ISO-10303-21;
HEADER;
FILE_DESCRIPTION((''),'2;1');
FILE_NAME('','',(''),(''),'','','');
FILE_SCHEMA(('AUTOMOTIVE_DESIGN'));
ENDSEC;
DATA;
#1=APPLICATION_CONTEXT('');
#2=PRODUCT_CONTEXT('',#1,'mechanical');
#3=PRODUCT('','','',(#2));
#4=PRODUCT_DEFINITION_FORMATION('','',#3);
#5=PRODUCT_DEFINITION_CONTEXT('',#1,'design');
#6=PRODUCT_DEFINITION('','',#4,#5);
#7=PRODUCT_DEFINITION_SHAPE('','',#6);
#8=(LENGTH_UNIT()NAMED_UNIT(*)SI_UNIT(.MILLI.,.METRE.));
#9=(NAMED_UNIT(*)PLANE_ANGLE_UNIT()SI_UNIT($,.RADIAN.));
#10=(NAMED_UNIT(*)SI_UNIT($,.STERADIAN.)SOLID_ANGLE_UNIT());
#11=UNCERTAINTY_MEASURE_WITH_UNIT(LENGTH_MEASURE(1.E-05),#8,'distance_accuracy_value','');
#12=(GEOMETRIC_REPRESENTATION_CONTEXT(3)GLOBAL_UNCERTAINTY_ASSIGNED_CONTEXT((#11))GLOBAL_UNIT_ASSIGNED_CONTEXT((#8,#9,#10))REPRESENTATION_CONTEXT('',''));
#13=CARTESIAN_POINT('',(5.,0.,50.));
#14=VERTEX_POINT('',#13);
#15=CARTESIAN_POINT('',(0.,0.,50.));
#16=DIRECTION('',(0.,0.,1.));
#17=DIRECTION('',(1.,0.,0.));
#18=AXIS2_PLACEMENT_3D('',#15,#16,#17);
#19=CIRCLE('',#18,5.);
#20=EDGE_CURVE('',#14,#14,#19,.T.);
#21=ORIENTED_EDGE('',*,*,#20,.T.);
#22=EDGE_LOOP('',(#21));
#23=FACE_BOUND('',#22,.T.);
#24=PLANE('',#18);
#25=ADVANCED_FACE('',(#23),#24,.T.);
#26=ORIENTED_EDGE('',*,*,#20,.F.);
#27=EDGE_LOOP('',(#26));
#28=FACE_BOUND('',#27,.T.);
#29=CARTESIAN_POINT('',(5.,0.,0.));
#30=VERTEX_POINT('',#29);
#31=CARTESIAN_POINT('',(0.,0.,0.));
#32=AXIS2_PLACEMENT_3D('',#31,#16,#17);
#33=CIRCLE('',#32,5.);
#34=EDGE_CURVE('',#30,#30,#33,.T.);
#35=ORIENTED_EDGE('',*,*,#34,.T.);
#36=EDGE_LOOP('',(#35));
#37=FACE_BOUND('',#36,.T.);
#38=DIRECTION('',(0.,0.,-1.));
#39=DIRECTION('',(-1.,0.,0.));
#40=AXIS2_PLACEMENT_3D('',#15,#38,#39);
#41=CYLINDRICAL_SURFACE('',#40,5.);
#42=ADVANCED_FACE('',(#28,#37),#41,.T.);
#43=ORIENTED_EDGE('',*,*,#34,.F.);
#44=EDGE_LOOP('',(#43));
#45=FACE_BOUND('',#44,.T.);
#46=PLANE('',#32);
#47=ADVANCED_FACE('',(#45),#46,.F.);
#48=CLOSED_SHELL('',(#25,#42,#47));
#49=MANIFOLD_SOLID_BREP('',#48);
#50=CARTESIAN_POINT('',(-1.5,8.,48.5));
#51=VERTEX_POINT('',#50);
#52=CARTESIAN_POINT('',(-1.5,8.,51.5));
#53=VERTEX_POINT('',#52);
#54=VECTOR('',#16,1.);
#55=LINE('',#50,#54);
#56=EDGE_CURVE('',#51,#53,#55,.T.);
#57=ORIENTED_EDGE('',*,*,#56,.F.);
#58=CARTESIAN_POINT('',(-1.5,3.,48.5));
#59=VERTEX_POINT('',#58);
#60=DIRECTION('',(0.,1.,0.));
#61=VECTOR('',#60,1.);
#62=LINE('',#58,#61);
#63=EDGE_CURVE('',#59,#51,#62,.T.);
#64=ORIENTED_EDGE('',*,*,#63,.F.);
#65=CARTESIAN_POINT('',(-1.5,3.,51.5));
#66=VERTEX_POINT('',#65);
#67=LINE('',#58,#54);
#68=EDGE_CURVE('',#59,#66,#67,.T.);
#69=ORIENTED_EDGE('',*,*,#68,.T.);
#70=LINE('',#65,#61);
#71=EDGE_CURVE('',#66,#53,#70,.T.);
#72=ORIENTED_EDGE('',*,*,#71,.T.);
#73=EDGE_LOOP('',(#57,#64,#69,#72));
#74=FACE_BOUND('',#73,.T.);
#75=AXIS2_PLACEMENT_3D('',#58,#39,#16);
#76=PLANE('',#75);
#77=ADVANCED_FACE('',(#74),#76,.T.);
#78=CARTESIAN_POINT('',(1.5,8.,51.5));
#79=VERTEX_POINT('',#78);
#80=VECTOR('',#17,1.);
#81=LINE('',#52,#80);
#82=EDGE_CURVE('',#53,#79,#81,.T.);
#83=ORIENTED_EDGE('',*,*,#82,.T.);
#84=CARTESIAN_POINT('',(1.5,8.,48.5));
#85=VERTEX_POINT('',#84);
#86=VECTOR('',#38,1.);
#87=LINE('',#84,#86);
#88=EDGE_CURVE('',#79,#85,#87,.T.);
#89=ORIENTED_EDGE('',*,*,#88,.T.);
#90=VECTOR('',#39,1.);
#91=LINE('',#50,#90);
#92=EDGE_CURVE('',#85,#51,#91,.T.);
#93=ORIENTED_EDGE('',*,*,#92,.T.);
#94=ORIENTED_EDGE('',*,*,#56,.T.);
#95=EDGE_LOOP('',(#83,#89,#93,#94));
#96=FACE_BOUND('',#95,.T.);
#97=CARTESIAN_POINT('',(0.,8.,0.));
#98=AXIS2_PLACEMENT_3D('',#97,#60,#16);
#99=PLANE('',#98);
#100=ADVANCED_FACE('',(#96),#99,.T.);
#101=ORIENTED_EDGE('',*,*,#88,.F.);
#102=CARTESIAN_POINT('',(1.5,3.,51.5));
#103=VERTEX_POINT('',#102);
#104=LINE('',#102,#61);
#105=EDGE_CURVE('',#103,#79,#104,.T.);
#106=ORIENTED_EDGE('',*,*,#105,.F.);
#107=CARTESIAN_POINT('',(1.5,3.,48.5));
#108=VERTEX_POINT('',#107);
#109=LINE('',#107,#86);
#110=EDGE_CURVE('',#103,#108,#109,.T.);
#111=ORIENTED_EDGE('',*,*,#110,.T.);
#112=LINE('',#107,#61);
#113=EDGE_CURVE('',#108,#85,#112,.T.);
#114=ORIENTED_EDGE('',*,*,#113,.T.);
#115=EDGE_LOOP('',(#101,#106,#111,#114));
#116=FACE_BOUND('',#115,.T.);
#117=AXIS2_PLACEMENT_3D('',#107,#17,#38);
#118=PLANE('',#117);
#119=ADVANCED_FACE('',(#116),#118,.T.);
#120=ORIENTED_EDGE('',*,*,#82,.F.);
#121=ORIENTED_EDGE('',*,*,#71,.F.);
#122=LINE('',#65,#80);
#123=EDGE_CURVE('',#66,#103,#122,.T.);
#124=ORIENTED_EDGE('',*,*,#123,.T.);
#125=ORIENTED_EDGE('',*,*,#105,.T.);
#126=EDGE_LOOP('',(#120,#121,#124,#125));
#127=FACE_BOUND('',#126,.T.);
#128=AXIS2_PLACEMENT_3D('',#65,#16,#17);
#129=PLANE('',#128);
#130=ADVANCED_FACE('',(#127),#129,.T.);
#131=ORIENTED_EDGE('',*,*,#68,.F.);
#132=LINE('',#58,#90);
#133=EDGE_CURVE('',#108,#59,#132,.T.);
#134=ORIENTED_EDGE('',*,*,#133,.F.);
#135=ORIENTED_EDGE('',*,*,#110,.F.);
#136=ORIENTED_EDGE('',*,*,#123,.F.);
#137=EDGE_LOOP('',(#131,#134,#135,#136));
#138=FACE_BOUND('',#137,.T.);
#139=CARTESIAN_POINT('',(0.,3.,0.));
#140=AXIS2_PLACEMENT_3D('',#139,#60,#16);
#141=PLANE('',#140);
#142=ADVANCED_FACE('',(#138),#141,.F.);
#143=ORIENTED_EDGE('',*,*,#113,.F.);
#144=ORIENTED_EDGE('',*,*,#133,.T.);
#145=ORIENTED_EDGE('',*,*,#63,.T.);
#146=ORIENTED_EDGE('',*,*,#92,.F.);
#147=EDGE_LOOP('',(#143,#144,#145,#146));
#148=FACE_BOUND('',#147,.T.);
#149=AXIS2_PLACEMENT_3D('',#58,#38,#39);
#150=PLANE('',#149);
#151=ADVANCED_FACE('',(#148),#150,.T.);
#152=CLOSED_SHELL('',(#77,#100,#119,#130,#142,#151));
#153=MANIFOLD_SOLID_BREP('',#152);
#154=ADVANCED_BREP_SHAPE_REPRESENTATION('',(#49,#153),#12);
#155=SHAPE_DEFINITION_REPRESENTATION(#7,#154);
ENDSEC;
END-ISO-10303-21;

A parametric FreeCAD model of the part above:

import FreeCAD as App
import Part
import Sketcher

V = App.Vector
Q = App.Units.Quantity

doc = App.newDocument("Part")
body = doc.addObject("PartDesign::Body", "Body")

# Sketch on XY plane
sketch1 = doc.addObject("Sketcher::SketchObject", "Sketch")
body.addObject(sketch1)
sketch1.AttachmentSupport = (doc.XY_Plane, [""])
sketch1.MapMode = "FlatFace"
sketch1.addGeometry(Part.Circle(V(0, 0, 0), V(0, 0, 1), 5), False)
sketch1.addConstraint(Sketcher.Constraint("Coincident", 0, 3, -1, 1))
sketch1.addConstraint(Sketcher.Constraint("Diameter", 0, Q("10 mm")))
pad1 = doc.addObject("PartDesign::Pad", "Pad")
body.addObject(pad1)
pad1.Profile = sketch1
pad1.Length = 50
body2 = doc.addObject("PartDesign::Body", "Body001")

# Sketch on XZ plane
sketch2 = doc.addObject("Sketcher::SketchObject", "Sketch001")
body2.addObject(sketch2)
sketch2.AttachmentSupport = (doc.getObject("XZ_Plane001"), [""])
sketch2.MapMode = "FlatFace"
sketch2.AttachmentOffset = App.Placement(V(0, 0, -5), App.Rotation())
sketch2.addGeometry(Part.LineSegment(V(-1.5, 48.5, 0), V(-1.5, 51.5, 0)), False)
sketch2.addGeometry(Part.LineSegment(V(-1.5, 51.5, 0), V(1.5, 51.5, 0)), False)
sketch2.addGeometry(Part.LineSegment(V(1.5, 51.5, 0), V(1.5, 48.5, 0)), False)
sketch2.addGeometry(Part.LineSegment(V(1.5, 48.5, 0), V(-1.5, 48.5, 0)), False)
sketch2.addConstraint(Sketcher.Constraint("Coincident", 0, 2, 1, 1))
sketch2.addConstraint(Sketcher.Constraint("Coincident", 1, 2, 2, 1))
sketch2.addConstraint(Sketcher.Constraint("Coincident", 2, 2, 3, 1))
sketch2.addConstraint(Sketcher.Constraint("Coincident", 3, 2, 0, 1))
sketch2.addConstraint(Sketcher.Constraint("Vertical", 0))
sketch2.addConstraint(Sketcher.Constraint("Horizontal", 1))
sketch2.addConstraint(Sketcher.Constraint("Vertical", 2))
sketch2.addConstraint(Sketcher.Constraint("Horizontal", 3))
sketch2.addConstraint(Sketcher.Constraint("Equal", 3, 0))
sketch2.addConstraint(Sketcher.Constraint("DistanceX", 1, 1, 1, 2, Q("3 mm")))
sketch2.addConstraint(Sketcher.Constraint("DistanceX", 0, 2, -1, 1, Q("1.5 mm")))
sketch2.addConstraint(Sketcher.Constraint("DistanceY", -1, 1, 0, 2, Q("51.5 mm")))
pad2 = doc.addObject("PartDesign::Pad", "Pad001")
body2.addObject(pad2)
pad2.Profile = sketch2
pad2.Type = "TwoLengths"
pad2.Length = 3
pad2.Length2 = 2
pad2.Reversed = True

doc.recompute()
